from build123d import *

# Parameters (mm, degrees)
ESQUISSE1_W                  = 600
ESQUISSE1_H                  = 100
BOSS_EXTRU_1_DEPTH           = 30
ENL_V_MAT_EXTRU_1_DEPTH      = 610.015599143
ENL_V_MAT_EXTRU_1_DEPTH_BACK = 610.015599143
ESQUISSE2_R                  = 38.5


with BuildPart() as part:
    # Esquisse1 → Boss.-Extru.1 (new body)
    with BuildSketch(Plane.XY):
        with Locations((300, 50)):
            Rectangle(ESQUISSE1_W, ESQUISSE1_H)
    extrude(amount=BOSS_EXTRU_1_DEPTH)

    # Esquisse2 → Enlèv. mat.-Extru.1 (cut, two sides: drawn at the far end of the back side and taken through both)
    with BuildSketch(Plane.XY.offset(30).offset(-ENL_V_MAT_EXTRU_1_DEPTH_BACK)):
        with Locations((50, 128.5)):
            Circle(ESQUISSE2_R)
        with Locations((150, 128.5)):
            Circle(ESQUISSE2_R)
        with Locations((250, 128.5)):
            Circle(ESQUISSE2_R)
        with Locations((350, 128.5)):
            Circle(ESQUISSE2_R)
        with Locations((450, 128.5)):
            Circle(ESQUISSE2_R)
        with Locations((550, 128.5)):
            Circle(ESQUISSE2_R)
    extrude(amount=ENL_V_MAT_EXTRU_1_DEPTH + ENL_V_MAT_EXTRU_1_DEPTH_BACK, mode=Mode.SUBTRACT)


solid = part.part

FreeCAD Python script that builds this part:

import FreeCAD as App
import Part
import Sketcher

V = App.Vector


def add_polygon(sketch, points):
    """Adds a closed chain of lines whose ends are joined by coincident constraints."""
    first, n = sketch.GeometryCount, len(points)
    for a, b in zip(points, points[1:] + points[:1]):
        sketch.addGeometry(Part.LineSegment(App.Vector(*a, 0), App.Vector(*b, 0)), False)
    for i in range(n):
        sketch.addConstraint(Sketcher.Constraint("Coincident", first + i, 2, first + (i + 1) % n, 1))

doc = App.newDocument("Part")
body = doc.addObject("PartDesign::Body", "Body")

sketch1 = body.newObject("Sketcher::SketchObject", "Sketch")
sketch1.AttachmentSupport = (doc.getObject("XY_Plane"), [""])
sketch1.MapMode = "FlatFace"
add_polygon(sketch1, [(0, 100), (0, 0), (600, 0), (600, 100)])
sketch1.addConstraint([
    Sketcher.Constraint("Vertical", 0),
    Sketcher.Constraint("Horizontal", 1),
    Sketcher.Constraint("Vertical", 2),
    Sketcher.Constraint("Horizontal", 3),
    Sketcher.Constraint("Coincident", 0, 2, -1, 1),
    Sketcher.Constraint("DistanceX", 1, 1, 1, 2, 600.0),
    Sketcher.Constraint("DistanceY", 0, 2, 0, 1, 100.0),
])
pad1 = body.newObject("PartDesign::Pad", "Pad")
pad1.Profile = sketch1
pad1.Length = 30

sketch2 = body.newObject("Sketcher::SketchObject", "Sketch001")
sketch2.AttachmentSupport = (doc.getObject("XY_Plane"), [""])
sketch2.MapMode = "FlatFace"
sketch2.AttachmentOffset = App.Placement(V(0, 0, 30), App.Rotation())
sketch2.addGeometry([
    Part.Circle(V(50, 128, 0), V(0, 0, 1), 38),
    Part.Circle(V(150, 128, 0), V(0, 0, 1), 38),
    Part.Circle(V(250, 128, 0), V(0, 0, 1), 38),
    Part.Circle(V(350, 128, 0), V(0, 0, 1), 38),
    Part.Circle(V(450, 128, 0), V(0, 0, 1), 38),
    Part.Circle(V(550, 128, 0), V(0, 0, 1), 38),
], False)
sketch2.addConstraint([
    Sketcher.Constraint("Equal", 0, 1),
    Sketcher.Constraint("Equal", 1, 2),
    Sketcher.Constraint("Equal", 2, 3),
    Sketcher.Constraint("Equal", 3, 4),
    Sketcher.Constraint("Equal", 4, 5),
    Sketcher.Constraint("Horizontal", 0, 3, 1, 3),
    Sketcher.Constraint("Horizontal", 1, 3, 2, 3),
    Sketcher.Constraint("Horizontal", 2, 3, 3, 3),
    Sketcher.Constraint("Horizontal", 3, 3, 4, 3),
    Sketcher.Constraint("Horizontal", 4, 3, 5, 3),
    Sketcher.Constraint("Diameter", 0, 77.0),
    Sketcher.Constraint("DistanceX", -1, 1, 0, 3, 50.0),
    Sketcher.Constraint("DistanceX", -1, 1, 1, 3, 150.0),
    Sketcher.Constraint("DistanceX", -1, 1, 2, 3, 250.0),
    Sketcher.Constraint("DistanceX", -1, 1, 3, 3, 350.0),
    Sketcher.Constraint("DistanceX", -1, 1, 4, 3, 450.0),
    Sketcher.Constraint("DistanceX", -1, 1, 5, 3, 550.0),
    Sketcher.Constraint("DistanceY", -1, 1, 0, 3, 128.5),
])
pocket1 = body.newObject("PartDesign::Pocket", "Pocket")
pocket1.Profile = sketch2
pocket1.Type = "ThroughAll"
pocket1.Midplane = True

doc.recompute()
